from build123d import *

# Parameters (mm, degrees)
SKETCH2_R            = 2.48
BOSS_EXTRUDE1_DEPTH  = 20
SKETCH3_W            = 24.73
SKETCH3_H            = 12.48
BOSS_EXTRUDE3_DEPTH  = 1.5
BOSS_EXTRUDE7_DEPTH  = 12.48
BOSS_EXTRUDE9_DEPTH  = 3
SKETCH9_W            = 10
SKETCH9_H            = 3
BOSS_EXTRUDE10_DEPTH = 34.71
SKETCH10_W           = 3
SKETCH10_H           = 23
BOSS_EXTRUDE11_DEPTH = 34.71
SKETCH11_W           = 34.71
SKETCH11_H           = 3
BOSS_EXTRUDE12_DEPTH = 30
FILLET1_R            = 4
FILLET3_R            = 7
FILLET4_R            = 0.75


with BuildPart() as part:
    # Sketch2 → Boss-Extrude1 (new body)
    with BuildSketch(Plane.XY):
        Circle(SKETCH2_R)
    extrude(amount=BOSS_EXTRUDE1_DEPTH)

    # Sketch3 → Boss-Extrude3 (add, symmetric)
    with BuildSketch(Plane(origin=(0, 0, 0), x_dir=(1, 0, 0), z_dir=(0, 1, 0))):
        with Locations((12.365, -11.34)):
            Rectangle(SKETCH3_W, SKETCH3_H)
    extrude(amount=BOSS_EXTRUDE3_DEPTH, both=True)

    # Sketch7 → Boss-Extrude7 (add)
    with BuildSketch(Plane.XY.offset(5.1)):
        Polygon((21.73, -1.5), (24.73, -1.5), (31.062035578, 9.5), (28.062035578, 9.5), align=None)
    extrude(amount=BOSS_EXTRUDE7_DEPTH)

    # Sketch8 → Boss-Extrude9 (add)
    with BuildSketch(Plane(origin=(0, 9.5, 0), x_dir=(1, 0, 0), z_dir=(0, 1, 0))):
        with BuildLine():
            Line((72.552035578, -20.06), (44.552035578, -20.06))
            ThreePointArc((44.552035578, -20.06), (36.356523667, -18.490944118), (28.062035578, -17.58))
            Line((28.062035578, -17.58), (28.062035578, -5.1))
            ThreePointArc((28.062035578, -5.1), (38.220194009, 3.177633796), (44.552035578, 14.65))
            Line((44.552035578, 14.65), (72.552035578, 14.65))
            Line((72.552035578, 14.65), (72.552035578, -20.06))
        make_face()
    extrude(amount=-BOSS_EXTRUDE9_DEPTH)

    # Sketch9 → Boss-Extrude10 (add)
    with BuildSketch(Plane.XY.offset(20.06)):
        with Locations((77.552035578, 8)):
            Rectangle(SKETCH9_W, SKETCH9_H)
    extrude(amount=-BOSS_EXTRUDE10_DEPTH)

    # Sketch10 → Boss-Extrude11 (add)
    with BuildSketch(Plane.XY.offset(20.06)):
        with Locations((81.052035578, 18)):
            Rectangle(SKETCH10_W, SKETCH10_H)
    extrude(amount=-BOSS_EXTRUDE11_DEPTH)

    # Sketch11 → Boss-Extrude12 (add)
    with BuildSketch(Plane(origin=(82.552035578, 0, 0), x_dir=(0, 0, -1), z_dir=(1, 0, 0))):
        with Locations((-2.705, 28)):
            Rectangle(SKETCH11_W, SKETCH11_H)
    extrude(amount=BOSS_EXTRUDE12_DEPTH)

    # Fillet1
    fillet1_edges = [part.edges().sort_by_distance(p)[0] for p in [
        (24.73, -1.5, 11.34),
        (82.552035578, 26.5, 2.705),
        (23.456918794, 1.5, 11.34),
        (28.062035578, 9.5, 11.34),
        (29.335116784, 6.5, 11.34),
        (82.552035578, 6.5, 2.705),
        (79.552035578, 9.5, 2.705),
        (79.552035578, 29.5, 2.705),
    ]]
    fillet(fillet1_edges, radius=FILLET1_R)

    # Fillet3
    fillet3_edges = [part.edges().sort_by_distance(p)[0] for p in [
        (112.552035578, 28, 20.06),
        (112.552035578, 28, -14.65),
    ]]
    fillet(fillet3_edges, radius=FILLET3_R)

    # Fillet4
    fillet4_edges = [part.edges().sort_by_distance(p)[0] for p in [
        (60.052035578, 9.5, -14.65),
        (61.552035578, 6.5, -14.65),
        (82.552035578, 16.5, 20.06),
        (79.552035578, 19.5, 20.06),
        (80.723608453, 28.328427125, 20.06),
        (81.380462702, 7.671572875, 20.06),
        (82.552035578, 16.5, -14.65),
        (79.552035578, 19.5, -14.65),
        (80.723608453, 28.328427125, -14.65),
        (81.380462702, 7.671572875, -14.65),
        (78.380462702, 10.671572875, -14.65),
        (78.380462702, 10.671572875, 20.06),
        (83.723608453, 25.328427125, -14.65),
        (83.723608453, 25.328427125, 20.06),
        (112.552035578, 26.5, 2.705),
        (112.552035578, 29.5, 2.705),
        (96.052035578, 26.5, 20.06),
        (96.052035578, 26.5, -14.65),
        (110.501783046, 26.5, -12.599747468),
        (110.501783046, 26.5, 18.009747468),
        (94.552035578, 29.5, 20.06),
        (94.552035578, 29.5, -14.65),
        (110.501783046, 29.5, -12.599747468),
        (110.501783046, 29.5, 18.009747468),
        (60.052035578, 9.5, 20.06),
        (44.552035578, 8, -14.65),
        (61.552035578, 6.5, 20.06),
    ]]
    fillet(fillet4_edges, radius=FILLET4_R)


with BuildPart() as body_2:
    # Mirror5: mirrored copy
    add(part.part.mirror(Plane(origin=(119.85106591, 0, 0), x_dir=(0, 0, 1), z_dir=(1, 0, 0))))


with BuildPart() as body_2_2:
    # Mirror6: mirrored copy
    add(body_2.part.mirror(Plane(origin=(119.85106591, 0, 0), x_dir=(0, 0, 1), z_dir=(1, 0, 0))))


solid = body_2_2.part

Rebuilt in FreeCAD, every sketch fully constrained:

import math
import FreeCAD as App
import Part
import Sketcher

V = App.Vector
Q = App.Units.Quantity


def edges_at(feature, points):
    """Names of the edges that pass closest to the given points."""
    edges = feature.Shape.Edges
    near = lambda p: min(range(len(edges)), key=lambda i: edges[i].distToShape(Part.Vertex(*p))[0])
    return sorted({f"Edge{near(p) + 1}" for p in points})


def add_polygon(sketch, points):
    """Adds a closed chain of lines whose ends are joined by coincident constraints."""
    first, n = sketch.GeometryCount, len(points)
    for a, b in zip(points, points[1:] + points[:1]):
        sketch.addGeometry(Part.LineSegment(App.Vector(*a, 0), App.Vector(*b, 0)), False)
    for i in range(n):
        sketch.addConstraint(Sketcher.Constraint("Coincident", first + i, 2, first + (i + 1) % n, 1))

doc = App.newDocument("Part")
body = doc.addObject("PartDesign::Body", "Body")

# Sketch on XY plane
sketch1 = body.newObject("Sketcher::SketchObject", "Sketch")
sketch1.AttachmentSupport = (doc.getObject("XY_Plane"), [""])
sketch1.MapMode = "FlatFace"
sketch1.addGeometry(Part.Circle(V(0, 0, 0), V(0, 0, 1), 2.5), False)
sketch1.addConstraint([
    Sketcher.Constraint("Coincident", 0, 3, -1, 1),
    Sketcher.Constraint("Diameter", 0, Q("4.96 mm")),
])
pad1 = body.newObject("PartDesign::Pad", "Pad")
pad1.Profile = sketch1
pad1.Length = 20

# Sketch on XZ plane
sketch2 = body.newObject("Sketcher::SketchObject", "Sketch001")
sketch2.AttachmentSupport = (doc.getObject("XZ_Plane"), [""])
sketch2.MapMode = "FlatFace"
add_polygon(sketch2, [(0, 5), (0, 18), (25, 18), (25, 5)])  # lines 0-3
sketch2.addConstraint([
    Sketcher.Constraint("Vertical", 0),
    Sketcher.Constraint("Horizontal", 1),
    Sketcher.Constraint("Vertical", 2),
    Sketcher.Constraint("Horizontal", 3),
    Sketcher.Constraint("PointOnObject", 0, 2, -2),
    Sketcher.Constraint("DistanceX", 1, 1, 1, 2, Q("24.73 mm")),
    Sketcher.Constraint("DistanceY", 0, 1, 0, 2, Q("12.48 mm")),
    Sketcher.Constraint("DistanceY", -1, 1, 2, 2, Q("5.1 mm")),
])
pad2 = body.newObject("PartDesign::Pad", "Pad001")
pad2.Profile = sketch2
pad2.Length = 3
pad2.Midplane = True

# Sketch on XY plane
sketch3 = body.newObject("Sketcher::SketchObject", "Sketch002")
sketch3.AttachmentSupport = (doc.getObject("XY_Plane"), [""])
sketch3.MapMode = "FlatFace"
sketch3.AttachmentOffset = App.Placement(V(0, 0, 5.1), App.Rotation())
add_polygon(sketch3, [(21.7, -1.5), (24.7, -1.5), (31.1, 9.5), (28.1, 9.5)])  # lines 0-3
sketch3.addConstraint([
    Sketcher.Constraint("Horizontal", 0),
    Sketcher.Constraint("Horizontal", 2),
    Sketcher.Constraint("Parallel", 1, 3),
    Sketcher.Constraint("DistanceX", 0, 1, 0, 2, Q("3 mm")),
    Sketcher.Constraint("DistanceY", 0, 2, 1, 2, Q("11 mm")),
    Sketcher.Constraint("DistanceY", 0, 2, -1, 1, Q("1.5 mm")),
    Sketcher.Constraint("DistanceX", -1, 1, 0, 2, Q("24.73 mm")),
    Sketcher.Constraint("Distance", 1, Q("12.692308 mm")),
])
pad3 = body.newObject("PartDesign::Pad", "Pad002")
pad3.Profile = sketch3
pad3.Length = 12.48

# Sketch on XZ plane
sketch4 = body.newObject("Sketcher::SketchObject", "Sketch003")
sketch4.AttachmentSupport = (doc.getObject("XZ_Plane"), [""])
sketch4.MapMode = "FlatFace"
sketch4.AttachmentOffset = App.Placement(V(0, 0, -9.5), App.Rotation())
sketch4.addGeometry([
    Part.LineSegment(V(45, 20, 0), V(73, 20, 0)),  # 0
    Part.LineSegment(V(73, 20, 0), V(73, -15, 0)),  # 1
    Part.LineSegment(V(73, -15, 0), V(45, -15, 0)),  # 2
    Part.ArcOfCircle(Part.Circle(V(12, -25, 0), V(0, 0, 1), 34), math.radians(18), math.radians(62)),  # 3
    Part.LineSegment(V(28, 5, 0), V(28, 18, 0)),  # 4
    Part.ArcOfCircle(Part.Circle(V(21, 122, 0), V(0, 0, 1), 105), math.radians(-86.02), math.radians(-76.88)),  # 5
], False)
sketch4.addConstraint([
    Sketcher.Constraint("Coincident", 0, 2, 1, 1),
    Sketcher.Constraint("Coincident", 1, 2, 2, 1),
    Sketcher.Constraint("Coincident", 2, 2, 3, 1),
    Sketcher.Constraint("Coincident", 3, 2, 4, 1),
    Sketcher.Constraint("Coincident", 4, 2, 5, 1),
    Sketcher.Constraint("Coincident", 5, 2, 0, 1),
    Sketcher.Constraint("Horizontal", 0),
    Sketcher.Constraint("Vertical", 1),
    Sketcher.Constraint("Horizontal", 2),
    Sketcher.Constraint("Vertical", 4),
    Sketcher.Constraint("Vertical", 2, 2, 5, 2),
    Sketcher.Constraint("DistanceX", 0, 1, 0, 2, Q("28 mm")),
    Sketcher.Constraint("DistanceY", 1, 2, 1, 1, Q("34.71 mm")),
    Sketcher.Constraint("DistanceY", 4, 1, 4, 2, Q("12.48 mm")),
    Sketcher.Constraint("DistanceY", -1, 1, 3, 2, Q("5.1 mm")),
    Sketcher.Constraint("Radius", 5, Q("104.6236 mm")),
    Sketcher.Constraint("DistanceY", -1, 1, 0, 2, Q("20.06 mm")),
    Sketcher.Constraint("Radius", 3, Q("34.44704 mm")),
    Sketcher.Constraint("DistanceX", 3, 2, 2, 2, Q("16.49 mm")),
    Sketcher.Constraint("DistanceX", -1, 1, 5, 3, Q("20.796728 mm")),
])
pad4 = body.newObject("PartDesign::Pad", "Pad003")
pad4.Profile = sketch4
pad4.Length = 3

# Sketch on XY plane
sketch5 = body.newObject("Sketcher::SketchObject", "Sketch004")
sketch5.AttachmentSupport = (doc.getObject("XY_Plane"), [""])
sketch5.MapMode = "FlatFace"
sketch5.AttachmentOffset = App.Placement(V(0, 0, 20.06), App.Rotation())
add_polygon(sketch5, [(72.6, 9.5), (72.6, 6.5), (82.6, 6.5), (82.6, 9.5)])  # lines 0-3
sketch5.addConstraint([
    Sketcher.Constraint("Vertical", 0),
    Sketcher.Constraint("Horizontal", 1),
    Sketcher.Constraint("Vertical", 2),
    Sketcher.Constraint("Horizontal", 3),
    Sketcher.Constraint("DistanceX", 1, 1, 1, 2, Q("10 mm")),
    Sketcher.Constraint("DistanceY", 0, 2, 0, 1, Q("3 mm")),
    Sketcher.Constraint("DistanceY", -1, 1, 0, 2, Q("6.5 mm")),
    Sketcher.Constraint("DistanceX", -1, 1, 0, 2, Q("72.552036 mm")),
])
pad5 = body.newObject("PartDesign::Pad", "Pad004")
pad5.Profile = sketch5
pad5.Length = 34.71
pad5.Reversed = True

# Sketch on XY plane
sketch6 = body.newObject("Sketcher::SketchObject", "Sketch005")
sketch6.AttachmentSupport = (doc.getObject("XY_Plane"), [""])
sketch6.MapMode = "FlatFace"
sketch6.AttachmentOffset = App.Placement(V(0, 0, 20.06), App.Rotation())
add_polygon(sketch6, [(79.6, 29.5), (79.6, 6.5), (82.6, 6.5), (82.6, 29.5)])  # lines 0-3
sketch6.addConstraint([
    Sketcher.Constraint("Vertical", 0),
    Sketcher.Constraint("Horizontal", 1),
    Sketcher.Constraint("Vertical", 2),
    Sketcher.Constraint("Horizontal", 3),
    Sketcher.Constraint("DistanceX", 1, 1, 1, 2, Q("3 mm")),
    Sketcher.Constraint("DistanceY", 0, 2, 0, 1, Q("23 mm")),
    Sketcher.Constraint("DistanceY", -1, 1, 0, 2, Q("6.5 mm")),
    Sketcher.Constraint("DistanceX", -1, 1, 0, 2, Q("79.552036 mm")),
])
pad6 = body.newObject("PartDesign::Pad", "Pad005")
pad6.Profile = sketch6
pad6.Length = 34.71
pad6.Reversed = True

# Sketch on YZ plane
sketch7 = body.newObject("Sketcher::SketchObject", "Sketch006")
sketch7.AttachmentSupport = (doc.getObject("YZ_Plane"), [""])
sketch7.MapMode = "FlatFace"
sketch7.AttachmentOffset = App.Placement(V(0, 0, 82.552036), App.Rotation())
add_polygon(sketch7, [(29.5, 20.1), (26.5, 20.1), (26.5, -14.7), (29.5, -14.7)])  # lines 0-3
sketch7.addConstraint([
    Sketcher.Constraint("Horizontal", 0),
    Sketcher.Constraint("Vertical", 1),
    Sketcher.Constraint("Horizontal", 2),
    Sketcher.Constraint("Vertical", 3),
    Sketcher.Constraint("DistanceX", 0, 2, 0, 1, Q("3 mm")),
    Sketcher.Constraint("DistanceY", 1, 2, 1, 1, Q("34.71 mm")),
    Sketcher.Constraint("DistanceX", -1, 1, 0, 2, Q("26.5 mm")),
    Sketcher.Constraint("DistanceY", -1, 1, 0, 2, Q("20.06 mm")),
])
pad7 = body.newObject("PartDesign::Pad", "Pad006")
pad7.Profile = sketch7
pad7.Length = 30
doc.recompute()

fillet = body.newObject("PartDesign::Fillet", "Fillet")
fillet.Base = (pad7, edges_at(pad7, [
    (24.73, -1.5, 11.34),
    (82.552, 26.5, 2.705),
    (23.457, 1.5, 11.34),
    (28.062, 9.5, 11.34),
    (29.335, 6.5, 11.34),
    (82.552, 6.5, 2.705),
    (79.552, 9.5, 2.705),
    (79.552, 29.5, 2.705),
]))
fillet.Radius = 4
doc.recompute()

fillet2 = body.newObject("PartDesign::Fillet", "Fillet001")
fillet2.Base = (fillet, edges_at(fillet, [(112.552, 28, 20.06), (112.552, 28, -14.65)]))
fillet2.Radius = 7
doc.recompute()

fillet3 = body.newObject("PartDesign::Fillet", "Fillet002")
fillet3.Base = (fillet2, edges_at(fillet2, [
    (60.052, 9.5, -14.65),
    (61.552, 6.5, -14.65),
    (82.552, 16.5, 20.06),
    (79.552, 19.5, 20.06),
    (80.724, 28.328, 20.06),
    (81.38, 7.672, 20.06),
    (82.552, 16.5, -14.65),
    (79.552, 19.5, -14.65),
    (80.724, 28.328, -14.65),
    (81.38, 7.672, -14.65),
    (78.38, 10.672, -14.65),
    (78.38, 10.672, 20.06),
    (83.724, 25.328, -14.65),
    (83.724, 25.328, 20.06),
    (112.552, 26.5, 2.705),
    (112.552, 29.5, 2.705),
    (96.052, 26.5, 20.06),
    (96.052, 26.5, -14.65),
    (110.502, 26.5, -12.6),
    (110.502, 26.5, 18.01),
    (94.552, 29.5, 20.06),
    (94.552, 29.5, -14.65),
    (110.502, 29.5, -12.6),
    (110.502, 29.5, 18.01),
    (60.052, 9.5, 20.06),
    (44.552, 8, -14.65),
    (61.552, 6.5, 20.06),
]))
fillet3.Radius = 0.75
body2 = doc.addObject("PartDesign::Body", "Body001")
doc.recompute()

mirroring = doc.addObject("Part::Mirroring", "Mirroring")
mirroring.Source = body
mirroring.Base = V(119.851066, 0, 0)
mirroring.Normal = V(1, 0, 0)
body2.BaseFeature = mirroring
doc.recompute()
body3 = doc.addObject("PartDesign::Body", "Body002")
doc.recompute()

mirroring2 = doc.addObject("Part::Mirroring", "Mirroring001")
mirroring2.Source = body2
mirroring2.Base = V(119.851066, 0, 0)
mirroring2.Normal = V(1, 0, 0)
body3.BaseFeature = mirroring2
doc.recompute()
body.Visibility = False
body2.Visibility = False
mirroring.Visibility = False
mirroring2.Visibility = False

doc.recompute()
